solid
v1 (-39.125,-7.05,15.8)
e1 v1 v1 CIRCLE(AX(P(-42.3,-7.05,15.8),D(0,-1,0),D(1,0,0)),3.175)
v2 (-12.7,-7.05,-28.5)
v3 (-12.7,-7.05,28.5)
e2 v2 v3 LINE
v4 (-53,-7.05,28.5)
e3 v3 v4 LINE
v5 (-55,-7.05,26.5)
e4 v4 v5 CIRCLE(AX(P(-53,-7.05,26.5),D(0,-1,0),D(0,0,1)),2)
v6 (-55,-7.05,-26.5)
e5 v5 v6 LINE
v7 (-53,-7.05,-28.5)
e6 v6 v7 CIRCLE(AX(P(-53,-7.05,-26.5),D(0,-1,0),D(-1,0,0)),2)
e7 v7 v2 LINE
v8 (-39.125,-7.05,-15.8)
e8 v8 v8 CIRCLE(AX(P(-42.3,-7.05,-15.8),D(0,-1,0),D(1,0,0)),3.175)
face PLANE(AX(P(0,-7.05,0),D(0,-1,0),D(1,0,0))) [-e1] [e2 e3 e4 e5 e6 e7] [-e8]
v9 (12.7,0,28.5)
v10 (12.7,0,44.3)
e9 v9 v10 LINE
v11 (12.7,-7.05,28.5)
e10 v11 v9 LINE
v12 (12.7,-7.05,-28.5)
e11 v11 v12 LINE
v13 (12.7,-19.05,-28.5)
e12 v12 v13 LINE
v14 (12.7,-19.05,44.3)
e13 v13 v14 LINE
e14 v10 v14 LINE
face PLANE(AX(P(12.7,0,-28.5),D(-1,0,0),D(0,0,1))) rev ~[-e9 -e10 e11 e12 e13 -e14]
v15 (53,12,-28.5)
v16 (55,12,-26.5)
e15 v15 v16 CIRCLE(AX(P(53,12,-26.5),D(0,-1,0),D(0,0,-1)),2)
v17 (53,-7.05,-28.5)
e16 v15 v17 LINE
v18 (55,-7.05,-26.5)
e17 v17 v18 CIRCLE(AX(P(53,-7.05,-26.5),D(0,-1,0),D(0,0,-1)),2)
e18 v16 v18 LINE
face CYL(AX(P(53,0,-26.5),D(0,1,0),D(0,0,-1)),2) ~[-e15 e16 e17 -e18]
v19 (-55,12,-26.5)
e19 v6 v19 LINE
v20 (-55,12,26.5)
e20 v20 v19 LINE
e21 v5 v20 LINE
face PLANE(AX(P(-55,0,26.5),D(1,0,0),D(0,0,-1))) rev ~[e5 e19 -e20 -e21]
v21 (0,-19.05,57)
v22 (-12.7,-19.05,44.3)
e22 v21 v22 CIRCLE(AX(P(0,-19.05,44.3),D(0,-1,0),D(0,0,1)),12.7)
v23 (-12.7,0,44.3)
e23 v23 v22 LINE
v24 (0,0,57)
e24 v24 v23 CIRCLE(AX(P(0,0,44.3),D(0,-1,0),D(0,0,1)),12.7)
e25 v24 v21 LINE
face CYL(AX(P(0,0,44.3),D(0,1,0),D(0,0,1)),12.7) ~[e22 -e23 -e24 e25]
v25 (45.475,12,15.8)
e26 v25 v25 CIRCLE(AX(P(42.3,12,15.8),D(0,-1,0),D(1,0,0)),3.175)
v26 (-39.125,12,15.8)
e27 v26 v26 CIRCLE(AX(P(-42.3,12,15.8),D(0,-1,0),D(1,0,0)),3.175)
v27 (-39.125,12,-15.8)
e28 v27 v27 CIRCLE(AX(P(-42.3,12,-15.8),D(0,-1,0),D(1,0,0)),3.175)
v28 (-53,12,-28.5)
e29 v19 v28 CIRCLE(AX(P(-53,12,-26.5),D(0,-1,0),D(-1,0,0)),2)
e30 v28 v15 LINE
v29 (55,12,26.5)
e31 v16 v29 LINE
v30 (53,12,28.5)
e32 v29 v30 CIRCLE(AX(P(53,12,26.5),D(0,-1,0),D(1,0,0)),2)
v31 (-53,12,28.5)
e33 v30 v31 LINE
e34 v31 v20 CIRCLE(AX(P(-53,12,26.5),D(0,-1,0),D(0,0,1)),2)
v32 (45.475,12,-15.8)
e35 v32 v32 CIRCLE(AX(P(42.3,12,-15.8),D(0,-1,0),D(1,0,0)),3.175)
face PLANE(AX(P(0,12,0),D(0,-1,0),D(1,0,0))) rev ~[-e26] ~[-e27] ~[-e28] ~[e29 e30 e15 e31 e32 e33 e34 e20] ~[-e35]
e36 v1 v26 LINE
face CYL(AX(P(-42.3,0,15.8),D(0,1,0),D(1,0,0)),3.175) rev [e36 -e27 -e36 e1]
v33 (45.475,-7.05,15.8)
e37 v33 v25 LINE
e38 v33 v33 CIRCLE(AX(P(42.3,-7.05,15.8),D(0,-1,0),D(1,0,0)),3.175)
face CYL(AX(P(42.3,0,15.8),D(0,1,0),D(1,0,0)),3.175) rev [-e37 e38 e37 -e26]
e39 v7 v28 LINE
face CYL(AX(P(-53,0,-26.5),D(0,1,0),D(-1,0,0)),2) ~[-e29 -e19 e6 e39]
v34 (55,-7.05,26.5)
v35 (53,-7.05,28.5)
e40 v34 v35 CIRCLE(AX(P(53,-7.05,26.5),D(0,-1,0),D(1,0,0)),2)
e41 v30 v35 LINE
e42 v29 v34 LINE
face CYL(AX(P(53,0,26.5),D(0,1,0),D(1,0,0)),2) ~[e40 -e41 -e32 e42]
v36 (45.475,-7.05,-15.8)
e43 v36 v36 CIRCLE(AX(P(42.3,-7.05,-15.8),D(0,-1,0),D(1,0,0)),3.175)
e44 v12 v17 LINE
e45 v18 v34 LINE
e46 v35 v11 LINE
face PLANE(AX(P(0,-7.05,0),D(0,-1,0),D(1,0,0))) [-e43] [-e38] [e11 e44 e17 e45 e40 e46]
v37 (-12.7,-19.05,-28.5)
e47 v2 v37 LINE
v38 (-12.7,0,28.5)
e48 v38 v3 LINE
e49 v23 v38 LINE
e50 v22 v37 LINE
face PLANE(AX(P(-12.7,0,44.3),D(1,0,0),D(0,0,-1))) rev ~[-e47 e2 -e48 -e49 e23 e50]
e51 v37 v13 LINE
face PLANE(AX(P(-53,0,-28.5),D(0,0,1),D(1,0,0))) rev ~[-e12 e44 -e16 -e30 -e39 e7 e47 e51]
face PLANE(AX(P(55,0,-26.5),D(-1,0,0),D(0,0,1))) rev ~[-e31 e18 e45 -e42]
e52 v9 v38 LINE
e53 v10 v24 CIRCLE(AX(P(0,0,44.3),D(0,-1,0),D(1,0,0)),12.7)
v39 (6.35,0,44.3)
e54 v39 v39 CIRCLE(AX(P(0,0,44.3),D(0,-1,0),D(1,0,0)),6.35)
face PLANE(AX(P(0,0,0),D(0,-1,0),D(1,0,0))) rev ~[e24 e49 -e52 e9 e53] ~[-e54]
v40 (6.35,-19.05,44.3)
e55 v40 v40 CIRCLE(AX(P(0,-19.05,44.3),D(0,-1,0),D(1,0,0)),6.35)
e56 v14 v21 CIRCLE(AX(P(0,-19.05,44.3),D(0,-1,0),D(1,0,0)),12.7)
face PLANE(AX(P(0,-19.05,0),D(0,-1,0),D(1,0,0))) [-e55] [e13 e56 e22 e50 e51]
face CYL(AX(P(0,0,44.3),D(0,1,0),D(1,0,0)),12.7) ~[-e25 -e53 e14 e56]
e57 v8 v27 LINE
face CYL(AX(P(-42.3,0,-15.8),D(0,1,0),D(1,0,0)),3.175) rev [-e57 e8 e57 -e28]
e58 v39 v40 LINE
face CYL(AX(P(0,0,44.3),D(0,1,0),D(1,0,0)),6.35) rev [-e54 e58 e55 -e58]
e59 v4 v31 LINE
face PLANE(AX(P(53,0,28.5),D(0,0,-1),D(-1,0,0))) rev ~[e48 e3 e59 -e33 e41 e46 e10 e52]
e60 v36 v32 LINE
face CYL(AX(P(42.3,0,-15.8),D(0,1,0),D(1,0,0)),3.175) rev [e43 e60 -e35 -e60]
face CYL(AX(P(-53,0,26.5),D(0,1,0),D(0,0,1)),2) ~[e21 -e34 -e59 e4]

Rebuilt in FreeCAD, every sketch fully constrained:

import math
import FreeCAD as App
import Part
import Sketcher
from FreeCAD import Vector
Q = App.Units.Quantity

doc = App.newDocument("Part")
body = doc.addObject("PartDesign::Body", "Body")

sketch1 = doc.addObject("Sketcher::SketchObject", "Sketch")
body.addObject(sketch1)
sketch1.AttachmentSupport = (doc.XZ_Plane, [""])
sketch1.MapMode = "FlatFace"
sketch1.addGeometry(Part.LineSegment(Vector(-53, -28.5, 0), Vector(53, -28.5, 0)), False)
sketch1.addGeometry(Part.ArcOfCircle(Part.Circle(Vector(53, -26.5, 0), Vector(0, 0, 1), 2), math.radians(-90), math.radians(0)), False)
sketch1.addGeometry(Part.LineSegment(Vector(55, -26.5, 0), Vector(55, 26.5, 0)), False)
sketch1.addGeometry(Part.ArcOfCircle(Part.Circle(Vector(53, 26.5, 0), Vector(0, 0, 1), 2), math.radians(0), math.radians(90)), False)
sketch1.addGeometry(Part.LineSegment(Vector(53, 28.5, 0), Vector(-53, 28.5, 0)), False)
sketch1.addGeometry(Part.ArcOfCircle(Part.Circle(Vector(-53, 26.5, 0), Vector(0, 0, 1), 2), math.radians(90), math.radians(180)), False)
sketch1.addGeometry(Part.LineSegment(Vector(-55, 26.5, 0), Vector(-55, -26.5, 0)), False)
sketch1.addGeometry(Part.ArcOfCircle(Part.Circle(Vector(-53, -26.5, 0), Vector(0, 0, 1), 2), math.radians(180), math.radians(270)), False)
sketch1.addGeometry(Part.Circle(Vector(-42.3, -15.8, 0), Vector(0, 0, 1), 3.2), False)
sketch1.addGeometry(Part.Circle(Vector(42.3, -15.8, 0), Vector(0, 0, 1), 3.2), False)
sketch1.addGeometry(Part.Circle(Vector(-42.3, 15.8, 0), Vector(0, 0, 1), 3.2), False)
sketch1.addGeometry(Part.Circle(Vector(42.3, 15.8, 0), Vector(0, 0, 1), 3.2), False)
sketch1.addConstraint(Sketcher.Constraint("Tangent", 0, 2, 1, 1))
sketch1.addConstraint(Sketcher.Constraint("Tangent", 1, 2, 2, 1))
sketch1.addConstraint(Sketcher.Constraint("Tangent", 2, 2, 3, 1))
sketch1.addConstraint(Sketcher.Constraint("Tangent", 3, 2, 4, 1))
sketch1.addConstraint(Sketcher.Constraint("Tangent", 4, 2, 5, 1))
sketch1.addConstraint(Sketcher.Constraint("Tangent", 5, 2, 6, 1))
sketch1.addConstraint(Sketcher.Constraint("Tangent", 6, 2, 7, 1))
sketch1.addConstraint(Sketcher.Constraint("Tangent", 7, 2, 0, 1))
sketch1.addConstraint(Sketcher.Constraint("Horizontal", 0))
sketch1.addConstraint(Sketcher.Constraint("Vertical", 2))
sketch1.addConstraint(Sketcher.Constraint("Horizontal", 4))
sketch1.addConstraint(Sketcher.Constraint("Vertical", 6))
sketch1.addConstraint(Sketcher.Constraint("Equal", 1, 3))
sketch1.addConstraint(Sketcher.Constraint("Equal", 3, 5))
sketch1.addConstraint(Sketcher.Constraint("Equal", 5, 7))
sketch1.addConstraint(Sketcher.Constraint("Equal", 8, 9))
sketch1.addConstraint(Sketcher.Constraint("Equal", 9, 10))
sketch1.addConstraint(Sketcher.Constraint("Equal", 10, 11))
sketch1.addConstraint(Sketcher.Constraint("Symmetric", 1, 3, 5, 3, -1, 1))
sketch1.addConstraint(Sketcher.Constraint("Symmetric", 9, 3, 10, 3, -1, 1))
sketch1.addConstraint(Sketcher.Constraint("Symmetric", 8, 3, 11, 3, -1, 1))
sketch1.addConstraint(Sketcher.Constraint("Symmetric", 8, 3, 9, 3, -2))
sketch1.addConstraint(Sketcher.Constraint("Radius", 1, Q("2 mm")))
sketch1.addConstraint(Sketcher.Constraint("Diameter", 8, Q("6.35 mm")))
sketch1.addConstraint(Sketcher.Constraint("DistanceX", 0, 1, 0, 2, Q("106 mm")))
sketch1.addConstraint(Sketcher.Constraint("DistanceY", 2, 1, 2, 2, Q("53 mm")))
sketch1.addConstraint(Sketcher.Constraint("DistanceX", 8, 3, -1, 1, Q("42.3 mm")))
sketch1.addConstraint(Sketcher.Constraint("DistanceY", 8, 3, -1, 1, Q("15.8 mm")))
pad1 = doc.addObject("PartDesign::Pad", "Pad")
body.addObject(pad1)
pad1.Profile = sketch1
pad1.Type = "TwoLengths"
pad1.Length = 12
pad1.Length2 = 7.05
pad1.Reversed = True

sketch2 = doc.addObject("Sketcher::SketchObject", "Sketch001")
body.addObject(sketch2)
sketch2.AttachmentSupport = (doc.XZ_Plane, [""])
sketch2.MapMode = "FlatFace"
sketch2.addGeometry(Part.LineSegment(Vector(-13, -28, 0), Vector(13, -28, 0)), False)
sketch2.addGeometry(Part.LineSegment(Vector(13, -28, 0), Vector(13, 44, 0)), False)
sketch2.addGeometry(Part.ArcOfCircle(Part.Circle(Vector(0, 44, 0), Vector(0, 0, 1), 13), math.radians(0), math.radians(90)), False)
sketch2.addGeometry(Part.ArcOfCircle(Part.Circle(Vector(0, 44, 0), Vector(0, 0, 1), 13), math.radians(90), math.radians(180)), False)
sketch2.addGeometry(Part.LineSegment(Vector(-13, 44, 0), Vector(-13, -28, 0)), False)
sketch2.addGeometry(Part.Circle(Vector(0, 44, 0), Vector(0, 0, 1), 6), False)
sketch2.addConstraint(Sketcher.Constraint("Coincident", 0, 2, 1, 1))
sketch2.addConstraint(Sketcher.Constraint("Tangent", 1, 2, 2, 1))
sketch2.addConstraint(Sketcher.Constraint("Tangent", 2, 2, 3, 1))
sketch2.addConstraint(Sketcher.Constraint("Tangent", 3, 2, 4, 1))
sketch2.addConstraint(Sketcher.Constraint("Coincident", 4, 2, 0, 1))
sketch2.addConstraint(Sketcher.Constraint("Horizontal", 0))
sketch2.addConstraint(Sketcher.Constraint("Vertical", 1))
sketch2.addConstraint(Sketcher.Constraint("Vertical", 4))
sketch2.addConstraint(Sketcher.Constraint("Coincident", 5, 3, 2, 3))
sketch2.addConstraint(Sketcher.Constraint("Equal", 2, 3))
sketch2.addConstraint(Sketcher.Constraint("PointOnObject", 2, 3, -2))
sketch2.addConstraint(Sketcher.Constraint("PointOnObject", 2, 2, -2))
sketch2.addConstraint(Sketcher.Constraint("Diameter", 5, Q("12.7 mm")))
sketch2.addConstraint(Sketcher.Constraint("Radius", 2, Q("12.7 mm")))
sketch2.addConstraint(Sketcher.Constraint("DistanceY", 1, 1, 1, 2, Q("72.8 mm")))
sketch2.addConstraint(Sketcher.Constraint("DistanceY", -1, 1, 2, 2, Q("57 mm")))
pad2 = doc.addObject("PartDesign::Pad", "Pad001")
body.addObject(pad2)
pad2.Profile = sketch2
pad2.Length = 19.05

doc.recompute()
